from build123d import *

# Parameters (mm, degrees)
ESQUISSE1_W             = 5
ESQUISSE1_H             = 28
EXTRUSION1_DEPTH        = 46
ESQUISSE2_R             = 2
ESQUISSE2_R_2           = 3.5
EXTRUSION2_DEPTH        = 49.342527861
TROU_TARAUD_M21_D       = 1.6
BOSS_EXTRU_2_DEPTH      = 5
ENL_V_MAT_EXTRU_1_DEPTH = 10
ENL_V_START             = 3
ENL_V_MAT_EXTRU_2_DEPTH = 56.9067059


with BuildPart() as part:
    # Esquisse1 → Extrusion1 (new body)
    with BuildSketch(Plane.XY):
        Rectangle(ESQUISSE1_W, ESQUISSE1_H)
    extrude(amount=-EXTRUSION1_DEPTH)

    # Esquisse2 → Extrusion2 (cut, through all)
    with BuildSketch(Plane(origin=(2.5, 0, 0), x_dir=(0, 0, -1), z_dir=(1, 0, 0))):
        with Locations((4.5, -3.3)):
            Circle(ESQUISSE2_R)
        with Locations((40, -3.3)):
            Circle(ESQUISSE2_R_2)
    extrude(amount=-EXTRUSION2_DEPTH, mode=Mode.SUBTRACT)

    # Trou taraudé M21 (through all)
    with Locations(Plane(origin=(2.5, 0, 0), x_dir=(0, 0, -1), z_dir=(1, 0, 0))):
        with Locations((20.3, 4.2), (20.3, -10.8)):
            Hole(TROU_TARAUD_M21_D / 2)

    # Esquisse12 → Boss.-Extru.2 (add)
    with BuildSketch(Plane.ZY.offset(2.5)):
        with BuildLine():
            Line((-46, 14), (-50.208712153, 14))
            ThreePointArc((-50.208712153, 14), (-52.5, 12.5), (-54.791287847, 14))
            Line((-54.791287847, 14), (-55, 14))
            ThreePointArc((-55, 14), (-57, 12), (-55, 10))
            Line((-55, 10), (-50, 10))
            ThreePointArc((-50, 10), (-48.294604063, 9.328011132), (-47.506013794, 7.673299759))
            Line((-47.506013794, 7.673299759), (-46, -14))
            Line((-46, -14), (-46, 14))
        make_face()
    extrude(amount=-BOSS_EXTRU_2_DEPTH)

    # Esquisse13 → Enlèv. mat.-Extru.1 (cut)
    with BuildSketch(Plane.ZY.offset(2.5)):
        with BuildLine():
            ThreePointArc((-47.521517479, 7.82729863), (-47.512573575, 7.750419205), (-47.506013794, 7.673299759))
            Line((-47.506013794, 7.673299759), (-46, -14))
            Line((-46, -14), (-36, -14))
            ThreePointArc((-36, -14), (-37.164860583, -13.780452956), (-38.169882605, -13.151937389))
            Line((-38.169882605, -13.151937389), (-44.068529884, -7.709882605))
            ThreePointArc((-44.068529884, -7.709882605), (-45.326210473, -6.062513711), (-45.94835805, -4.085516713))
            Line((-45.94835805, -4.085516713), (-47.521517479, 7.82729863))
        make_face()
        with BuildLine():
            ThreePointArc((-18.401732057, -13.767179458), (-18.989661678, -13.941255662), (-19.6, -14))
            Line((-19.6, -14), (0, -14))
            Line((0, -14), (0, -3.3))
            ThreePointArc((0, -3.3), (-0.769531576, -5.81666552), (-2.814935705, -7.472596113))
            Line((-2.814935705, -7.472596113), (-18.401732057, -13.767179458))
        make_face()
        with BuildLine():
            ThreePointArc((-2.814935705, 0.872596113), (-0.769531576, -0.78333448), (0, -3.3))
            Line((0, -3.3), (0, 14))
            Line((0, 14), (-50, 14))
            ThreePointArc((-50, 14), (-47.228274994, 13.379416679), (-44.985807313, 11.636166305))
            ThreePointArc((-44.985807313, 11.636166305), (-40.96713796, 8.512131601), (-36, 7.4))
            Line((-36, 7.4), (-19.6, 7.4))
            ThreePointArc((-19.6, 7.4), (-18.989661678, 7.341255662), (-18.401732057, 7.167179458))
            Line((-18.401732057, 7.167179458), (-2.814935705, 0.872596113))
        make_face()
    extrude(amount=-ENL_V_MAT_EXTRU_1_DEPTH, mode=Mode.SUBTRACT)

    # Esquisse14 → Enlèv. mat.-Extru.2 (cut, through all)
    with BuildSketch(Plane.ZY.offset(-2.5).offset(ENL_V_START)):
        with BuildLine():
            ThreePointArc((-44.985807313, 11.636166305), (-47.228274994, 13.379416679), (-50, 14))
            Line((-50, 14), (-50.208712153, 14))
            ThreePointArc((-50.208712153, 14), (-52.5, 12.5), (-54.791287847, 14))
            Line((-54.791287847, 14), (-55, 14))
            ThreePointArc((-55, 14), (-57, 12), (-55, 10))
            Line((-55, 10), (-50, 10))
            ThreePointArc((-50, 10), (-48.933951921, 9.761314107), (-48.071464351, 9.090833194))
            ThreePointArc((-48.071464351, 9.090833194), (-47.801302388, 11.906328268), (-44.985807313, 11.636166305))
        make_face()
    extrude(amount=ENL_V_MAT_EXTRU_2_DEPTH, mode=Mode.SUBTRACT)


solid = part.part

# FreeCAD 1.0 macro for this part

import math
import FreeCAD as App
import Part
import Sketcher
from FreeCAD import Vector


def add_polygon(sketch, points):
    """Adds a closed chain of lines whose ends are joined by coincident constraints."""
    first, n = sketch.GeometryCount, len(points)
    for a, b in zip(points, points[1:] + points[:1]):
        sketch.addGeometry(Part.LineSegment(App.Vector(*a, 0), App.Vector(*b, 0)), False)
    for i in range(n):
        sketch.addConstraint(Sketcher.Constraint("Coincident", first + i, 2, first + (i + 1) % n, 1))

doc = App.newDocument("Part")
params = doc.addObject("Spreadsheet::Sheet", "Params")
for row, (alias, value) in enumerate([
    ("sketch1_width", "5 mm"),
    ("sketch1_height", "28 mm"),
    ("pad1_length", "46 mm"),
    ("sketch2_diameter", "4 mm"),
    ("sketch2_diameter2", "7 mm"),
    ("sketch3_diameter", "1.6 mm"),
    ("hole_diameter", "1.6 mm"),
    ("sketch4_radius", "2 mm"),
    ("sketch4_radius2", "2.5 mm"),
    ("sketch4_width", "28 mm"),
    ("sketch4_height", "5 mm"),
    ("pad2_length", "5 mm"),
    ("sketch5_radius", "6 mm"),
    ("sketch5_radius2", "2.500001 mm"),
    ("sketch5_radius3", "3.2 mm"),
    ("sketch5_radius4", "4.5 mm"),
    ("sketch5_radius5", "6.5 mm"),
    ("pocket2_length", "10 mm"),
    ("sketch6_radius", "2 mm"),
    ("sketch6_radius2", "6.5 mm"),
    ("sketch6_height", "5 mm"),
], start=1):
    params.set(f"A{row}", alias)
    params.set(f"B{row}", "=" + value)
    params.setAlias(f"B{row}", alias)

body = doc.addObject("PartDesign::Body", "Body")

sketch1 = body.newObject("Sketcher::SketchObject", "Sketch")
sketch1.AttachmentSupport = (doc.getObject("XY_Plane"), [""])
sketch1.MapMode = "FlatFace"
add_polygon(sketch1, [(-2.5, 14), (-2.5, -14), (2.5, -14), (2.5, 14)])
sketch1.addConstraint([
    Sketcher.Constraint("Vertical", 0),
    Sketcher.Constraint("Horizontal", 1),
    Sketcher.Constraint("Vertical", 2),
    Sketcher.Constraint("Horizontal", 3),
    Sketcher.Constraint("Symmetric", 0, 2, 2, 2, -1, 1),
    Sketcher.Constraint("DistanceX", 1, 1, 1, 2, 5.0),
    Sketcher.Constraint("DistanceY", 0, 2, 0, 1, 28.0),
])
sketch1.setExpression("Constraints[9]", "Params.sketch1_width")
sketch1.setExpression("Constraints[10]", "Params.sketch1_height")
pad1 = body.newObject("PartDesign::Pad", "Pad")
pad1.Profile = sketch1
pad1.setExpression("Length", "Params.pad1_length")
pad1.Reversed = True

sketch2 = body.newObject("Sketcher::SketchObject", "Sketch001")
sketch2.AttachmentSupport = (doc.getObject("YZ_Plane"), [""])
sketch2.MapMode = "FlatFace"
sketch2.AttachmentOffset = App.Placement(Vector(0, 0, 2.5), App.Rotation())
sketch2.addGeometry([
    Part.Circle(Vector(-3.3, -4.5, 0), Vector(0, 0, 1), 2),
    Part.Circle(Vector(-3.3, -40, 0), Vector(0, 0, 1), 3.5),
], False)
sketch2.addConstraint([
    Sketcher.Constraint("Vertical", 0, 3, 1, 3),
    Sketcher.Constraint("Diameter", 0, 4.0),
    Sketcher.Constraint("Diameter", 1, 7.0),
    Sketcher.Constraint("DistanceY", 1, 3, -1, 1, 40.0),
    Sketcher.Constraint("DistanceX", 0, 3, -1, 1, 3.3),
    Sketcher.Constraint("DistanceY", 0, 3, -1, 1, 4.5),
])
sketch2.setExpression("Constraints[1]", "Params.sketch2_diameter")
sketch2.setExpression("Constraints[2]", "Params.sketch2_diameter2")
pocket1 = body.newObject("PartDesign::Pocket", "Pocket")
pocket1.Profile = sketch2
pocket1.Type = "ThroughAll"

sketch3 = body.newObject("Sketcher::SketchObject", "Sketch002")
sketch3.AttachmentSupport = (doc.getObject("YZ_Plane"), [""])
sketch3.MapMode = "FlatFace"
sketch3.AttachmentOffset = App.Placement(Vector(0, 0, 2.5), App.Rotation())
sketch3.addGeometry([
    Part.Circle(Vector(4.2, -20.3, 0), Vector(0, 0, 1), 0.8),
    Part.Circle(Vector(-10.8, -20.3, 0), Vector(0, 0, 1), 0.8),
], False)
sketch3.addConstraint([
    Sketcher.Constraint("Equal", 0, 1),
    Sketcher.Constraint("Horizontal", 0, 3, 1, 3),
    Sketcher.Constraint("Diameter", 0, 1.6),
    Sketcher.Constraint("DistanceX", 1, 3, 0, 3, 15.0),
    Sketcher.Constraint("DistanceX", -1, 1, 0, 3, 4.2),
    Sketcher.Constraint("DistanceY", 0, 3, -1, 1, 20.3),
])
sketch3.setExpression("Constraints[2]", "Params.sketch3_diameter")
doc.recompute()
hole = body.newObject("PartDesign::Hole", "Hole")
hole.Profile = sketch3
hole.ThreadType = "None"
hole.setExpression("Diameter", "Params.hole_diameter")
hole.DepthType = "ThroughAll"

sketch4 = body.newObject("Sketcher::SketchObject", "Sketch003")
sketch4.AttachmentSupport = (doc.getObject("YZ_Plane"), [""])
sketch4.MapMode = "FlatFace"
sketch4.AttachmentOffset = App.Placement(Vector(0, 0, -2.5), App.Rotation())
sketch4.addGeometry([
    Part.LineSegment(Vector(14, -46, 0), Vector(14, -50.208712, 0)),
    Part.ArcOfCircle(Part.Circle(Vector(15, -52.5, 0), Vector(0, 0, 1), 2.5), math.radians(113.578178), math.radians(246.421822)),
    Part.LineSegment(Vector(14, -54.791288, 0), Vector(14, -55, 0)),
    Part.ArcOfCircle(Part.Circle(Vector(12, -55, 0), Vector(0, 0, 1), 2), math.radians(180), math.radians(360)),
    Part.LineSegment(Vector(10, -55, 0), Vector(10, -50, 0)),
    Part.ArcOfCircle(Part.Circle(Vector(7.5, -50, 0), Vector(0, 0, 1), 2.5), math.radians(0), math.radians(86.025074)),
    Part.LineSegment(Vector(7.6733, -47.506014, 0), Vector(-14, -46, 0)),
    Part.LineSegment(Vector(-14, -46, 0), Vector(14, -46, 0)),
], False)
sketch4.addConstraint([
    Sketcher.Constraint("Coincident", 0, 2, 1, 1),
    Sketcher.Constraint("Coincident", 1, 2, 2, 1),
    Sketcher.Constraint("Tangent", 2, 2, 3, 2),
    Sketcher.Constraint("Tangent", 3, 1, 4, 1),
    Sketcher.Constraint("Tangent", 4, 2, 5, 1),
    Sketcher.Constraint("Tangent", 5, 2, 6, 1),
    Sketcher.Constraint("Coincident", 6, 2, 7, 1),
    Sketcher.Constraint("Coincident", 7, 2, 0, 1),
    Sketcher.Constraint("Vertical", 0),
    Sketcher.Constraint("Vertical", 2),
    Sketcher.Constraint("Vertical", 4),
    Sketcher.Constraint("Horizontal", 7),
    Sketcher.Constraint("Equal", 1, 5),
    Sketcher.Constraint("Vertical", 0, 2, 1, 2),
    Sketcher.Constraint("Radius", 3, 2.0),
    Sketcher.Constraint("Radius", 1, 2.5),
    Sketcher.Constraint("DistanceX", 7, 1, 7, 2, 28.0),
    Sketcher.Constraint("DistanceY", 4, 1, 4, 2, 5.0),
    Sketcher.Constraint("DistanceX", -1, 1, 1, 3, 15.0),
    Sketcher.Constraint("DistanceX", -1, 1, 3, 3, 12.0),
    Sketcher.Constraint("DistanceY", 3, 3, -1, 1, 55.0),
    Sketcher.Constraint("DistanceY", 6, 2, -1, 1, 46.0),
    Sketcher.Constraint("DistanceY", 1, 3, -1, 1, 52.5),
])
sketch4.setExpression("Constraints[14]", "Params.sketch4_radius")
sketch4.setExpression("Constraints[15]", "Params.sketch4_radius2")
sketch4.setExpression("Constraints[16]", "Params.sketch4_width")
sketch4.setExpression("Constraints[17]", "Params.sketch4_height")
pad2 = body.newObject("PartDesign::Pad", "Pad001")
pad2.Profile = sketch4
pad2.setExpression("Length", "Params.pad2_length")

sketch5 = body.newObject("Sketcher::SketchObject", "Sketch004")
sketch5.AttachmentSupport = (doc.getObject("YZ_Plane"), [""])
sketch5.MapMode = "FlatFace"
sketch5.AttachmentOffset = App.Placement(Vector(0, 0, -2.5), App.Rotation())
sketch5.addGeometry([
    Part.ArcOfCircle(Part.Circle(Vector(7.5, -50.000001, 0), Vector(0, 0, 1), 2.500001), math.radians(82.477274), math.radians(86.025073)),
    Part.LineSegment(Vector(7.6733, -47.506014, 0), Vector(-14, -46, 0)),
    Part.LineSegment(Vector(-14, -46, 0), Vector(-14, -36, 0)),
    Part.ArcOfCircle(Part.Circle(Vector(-10.8, -36, 0), Vector(0, 0, 1), 3.2), math.radians(180), math.radians(222.694437)),
    Part.LineSegment(Vector(-13.151937, -38.169883, 0), Vector(-7.709883, -44.06853, 0)),
    Part.ArcOfCircle(Part.Circle(Vector(-3.3, -40, 0), Vector(0, 0, 1), 6), math.radians(-137.305563), math.radians(-97.522727)),
    Part.LineSegment(Vector(-4.085517, -45.948358, 0), Vector(7.827299, -47.521517, 0)),
    Part.ArcOfCircle(Part.Circle(Vector(-10.8, -19.6, 0), Vector(0, 0, 1), 3.2), math.radians(158.009137), math.radians(180)),
    Part.LineSegment(Vector(-14, -19.6, 0), Vector(-14, 0, 0)),
    Part.LineSegment(Vector(-14, 0, 0), Vector(-3.3, 0, 0)),
    Part.ArcOfCircle(Part.Circle(Vector(-3.3, -4.5, 0), Vector(0, 0, 1), 4.5), math.radians(90), math.radians(158.009137)),
    Part.LineSegment(Vector(-7.472596, -2.814936, 0), Vector(-13.767179, -18.401732, 0)),
    Part.ArcOfCircle(Part.Circle(Vector(-3.3, -4.5, 0), Vector(0, 0, 1), 4.5), math.radians(21.990863), math.radians(90)),
    Part.LineSegment(Vector(-3.3, 0, 0), Vector(14, 0, 0)),
    Part.LineSegment(Vector(14, 0, 0), Vector(14, -50, 0)),
    Part.ArcOfCircle(Part.Circle(Vector(7.5, -50, 0), Vector(0, 0, 1), 6.5), math.radians(0), math.radians(50.481059)),
    Part.ArcOfCircle(Part.Circle(Vector(19.048485, -36, 0), Vector(0, 0, 1), 11.648485), math.radians(180), math.radians(230.481059)),
    Part.LineSegment(Vector(7.4, -36, 0), Vector(7.4, -19.6, 0)),
    Part.ArcOfCircle(Part.Circle(Vector(4.2, -19.6, 0), Vector(0, 0, 1), 3.2), math.radians(0), math.radians(21.990863)),
    Part.LineSegment(Vector(7.167179, -18.401732, 0), Vector(0.872596, -2.814936, 0)),
], False)
sketch5.addConstraint([
    Sketcher.Constraint("Tangent", 0, 2, 1, 1),
    Sketcher.Constraint("Coincident", 1, 2, 2, 1),
    Sketcher.Constraint("Tangent", 2, 2, 3, 1),
    Sketcher.Constraint("Tangent", 3, 2, 4, 1),
    Sketcher.Constraint("Tangent", 4, 2, 5, 1),
    Sketcher.Constraint("Tangent", 5, 2, 6, 1),
    Sketcher.Constraint("Tangent", 6, 2, 0, 1),
    Sketcher.Constraint("Tangent", 7, 2, 8, 1),
    Sketcher.Constraint("Coincident", 8, 2, 9, 1),
    Sketcher.Constraint("Tangent", 9, 2, 10, 1),
    Sketcher.Constraint("Tangent", 10, 2, 11, 1),
    Sketcher.Constraint("Tangent", 11, 2, 7, 1),
    Sketcher.Constraint("Tangent", 12, 2, 13, 1),
    Sketcher.Constraint("Coincident", 13, 2, 14, 1),
    Sketcher.Constraint("Tangent", 14, 2, 15, 1),
    Sketcher.Constraint("Tangent", 15, 2, 16, 2),
    Sketcher.Constraint("Tangent", 16, 1, 17, 1),
    Sketcher.Constraint("Tangent", 17, 2, 18, 1),
    Sketcher.Constraint("Tangent", 18, 2, 19, 1),
    Sketcher.Constraint("Tangent", 19, 2, 12, 1),
    Sketcher.Constraint("Vertical", 2),
    Sketcher.Constraint("Vertical", 8),
    Sketcher.Constraint("Horizontal", 9),
    Sketcher.Constraint("Horizontal", 13),
    Sketcher.Constraint("Vertical", 14),
    Sketcher.Constraint("Vertical", 17),
    Sketcher.Constraint("Coincident", 12, 3, 10, 3),
    Sketcher.Constraint("Coincident", 15, 3, 0, 3),
    Sketcher.Constraint("Equal", 3, 7),
    Sketcher.Constraint("Equal", 10, 12),
    Sketcher.Constraint("Equal", 7, 18),
    Sketcher.Constraint("Symmetric", 8, 2, 13, 2, -1, 1),
    Sketcher.Constraint("Horizontal", 3, 3, 16, 3),
    Sketcher.Constraint("Horizontal", 7, 3, 18, 3),
    Sketcher.Constraint("Horizontal", 11, 2, 18, 2),
    Sketcher.Constraint("Vertical", 3, 3, 7, 3),
    Sketcher.Constraint("Vertical", 5, 3, 10, 3),
    Sketcher.Constraint("Radius", 5, 6.0),
    Sketcher.Constraint("Radius", 0, 2.500001),
    Sketcher.Constraint("Radius", 3, 3.2),
    Sketcher.Constraint("Radius", 10, 4.5),
    Sketcher.Constraint("Radius", 15, 6.5),
    Sketcher.Constraint("DistanceY", 2, 1, 2, 2, 10.0),
    Sketcher.Constraint("DistanceY", 14, 2, 14, 1, 50.0),
    Sketcher.Constraint("DistanceX", 9, 1, 9, 2, 10.7),
    Sketcher.Constraint("DistanceX", 13, 1, 13, 2, 17.3),
    Sketcher.Constraint("DistanceY", 8, 1, 8, 2, 19.6),
    Sketcher.Constraint("DistanceY", 17, 1, 17, 2, 16.4),
    Sketcher.Constraint("DistanceY", 5, 3, -1, 1, 40.0),
])
sketch5.setExpression("Constraints[37]", "Params.sketch5_radius")
sketch5.setExpression("Constraints[38]", "Params.sketch5_radius2")
sketch5.setExpression("Constraints[39]", "Params.sketch5_radius3")
sketch5.setExpression("Constraints[40]", "Params.sketch5_radius4")
sketch5.setExpression("Constraints[41]", "Params.sketch5_radius5")
pocket2 = body.newObject("PartDesign::Pocket", "Pocket001")
pocket2.Profile = sketch5
pocket2.setExpression("Length", "Params.pocket2_length")
pocket2.Reversed = True

sketch6 = body.newObject("Sketcher::SketchObject", "Sketch005")
sketch6.AttachmentSupport = (doc.getObject("YZ_Plane"), [""])
sketch6.MapMode = "FlatFace"
sketch6.AttachmentOffset = App.Placement(Vector(0, 0, -0.5), App.Rotation())
sketch6.addGeometry([
    Part.ArcOfCircle(Part.Circle(Vector(7.5, -50, 0), Vector(0, 0, 1), 6.5), math.radians(0), math.radians(50.481059)),
    Part.LineSegment(Vector(14, -50, 0), Vector(14, -50.208712, 0)),
    Part.ArcOfCircle(Part.Circle(Vector(15, -52.5, 0), Vector(0, 0, 1), 2.5), math.radians(113.578178), math.radians(246.421822)),
    Part.LineSegment(Vector(14, -54.791288, 0), Vector(14, -55, 0)),
    Part.ArcOfCircle(Part.Circle(Vector(12, -55, 0), Vector(0, 0, 1), 2), math.radians(180), math.radians(360)),
    Part.LineSegment(Vector(10, -55, 0), Vector(10, -50, 0)),
    Part.ArcOfCircle(Part.Circle(Vector(7.5, -50, 0), Vector(0, 0, 1), 2.5), math.radians(0), math.radians(50.481058)),
    Part.ArcOfCircle(Part.Circle(Vector(10.3635, -46.528636, 0), Vector(0, 0, 1), 2), math.radians(-129.518941), math.radians(50.481059)),
], False)
sketch6.addConstraint([
    Sketcher.Constraint("Tangent", 0, 1, 1, 1),
    Sketcher.Constraint("Coincident", 1, 2, 2, 1),
    Sketcher.Constraint("Coincident", 2, 2, 3, 1),
    Sketcher.Constraint("Tangent", 3, 2, 4, 2),
    Sketcher.Constraint("Tangent", 4, 1, 5, 1),
    Sketcher.Constraint("Tangent", 5, 2, 6, 1),
    Sketcher.Constraint("Tangent", 6, 2, 7, 1),
    Sketcher.Constraint("Tangent", 7, 2, 0, 2),
    Sketcher.Constraint("Vertical", 1),
    Sketcher.Constraint("Vertical", 3),
    Sketcher.Constraint("Vertical", 5),
    Sketcher.Constraint("Coincident", 6, 3, 0, 3),
    Sketcher.Constraint("Equal", 2, 6),
    Sketcher.Constraint("Equal", 4, 7),
    Sketcher.Constraint("Equal", 1, 3),
    Sketcher.Constraint("Radius", 4, 2.0),
    Sketcher.Constraint("Radius", 0, 6.5),
    Sketcher.Constraint("DistanceY", 5, 1, 5, 2, 5.0),
    Sketcher.Constraint("DistanceY", 0, 3, -1, 1, 50.0),
    Sketcher.Constraint("DistanceX", -1, 1, 2, 3, 15.0),
    Sketcher.Constraint("DistanceX", -1, 1, 4, 3, 12.0),
    Sketcher.Constraint("DistanceX", -1, 1, 7, 3, 10.3635),
])
sketch6.setExpression("Constraints[15]", "Params.sketch6_radius")
sketch6.setExpression("Constraints[16]", "Params.sketch6_radius2")
sketch6.setExpression("Constraints[17]", "Params.sketch6_height")
pocket3 = body.newObject("PartDesign::Pocket", "Pocket002")
pocket3.Profile = sketch6
pocket3.Type = "ThroughAll"

doc.recompute()
